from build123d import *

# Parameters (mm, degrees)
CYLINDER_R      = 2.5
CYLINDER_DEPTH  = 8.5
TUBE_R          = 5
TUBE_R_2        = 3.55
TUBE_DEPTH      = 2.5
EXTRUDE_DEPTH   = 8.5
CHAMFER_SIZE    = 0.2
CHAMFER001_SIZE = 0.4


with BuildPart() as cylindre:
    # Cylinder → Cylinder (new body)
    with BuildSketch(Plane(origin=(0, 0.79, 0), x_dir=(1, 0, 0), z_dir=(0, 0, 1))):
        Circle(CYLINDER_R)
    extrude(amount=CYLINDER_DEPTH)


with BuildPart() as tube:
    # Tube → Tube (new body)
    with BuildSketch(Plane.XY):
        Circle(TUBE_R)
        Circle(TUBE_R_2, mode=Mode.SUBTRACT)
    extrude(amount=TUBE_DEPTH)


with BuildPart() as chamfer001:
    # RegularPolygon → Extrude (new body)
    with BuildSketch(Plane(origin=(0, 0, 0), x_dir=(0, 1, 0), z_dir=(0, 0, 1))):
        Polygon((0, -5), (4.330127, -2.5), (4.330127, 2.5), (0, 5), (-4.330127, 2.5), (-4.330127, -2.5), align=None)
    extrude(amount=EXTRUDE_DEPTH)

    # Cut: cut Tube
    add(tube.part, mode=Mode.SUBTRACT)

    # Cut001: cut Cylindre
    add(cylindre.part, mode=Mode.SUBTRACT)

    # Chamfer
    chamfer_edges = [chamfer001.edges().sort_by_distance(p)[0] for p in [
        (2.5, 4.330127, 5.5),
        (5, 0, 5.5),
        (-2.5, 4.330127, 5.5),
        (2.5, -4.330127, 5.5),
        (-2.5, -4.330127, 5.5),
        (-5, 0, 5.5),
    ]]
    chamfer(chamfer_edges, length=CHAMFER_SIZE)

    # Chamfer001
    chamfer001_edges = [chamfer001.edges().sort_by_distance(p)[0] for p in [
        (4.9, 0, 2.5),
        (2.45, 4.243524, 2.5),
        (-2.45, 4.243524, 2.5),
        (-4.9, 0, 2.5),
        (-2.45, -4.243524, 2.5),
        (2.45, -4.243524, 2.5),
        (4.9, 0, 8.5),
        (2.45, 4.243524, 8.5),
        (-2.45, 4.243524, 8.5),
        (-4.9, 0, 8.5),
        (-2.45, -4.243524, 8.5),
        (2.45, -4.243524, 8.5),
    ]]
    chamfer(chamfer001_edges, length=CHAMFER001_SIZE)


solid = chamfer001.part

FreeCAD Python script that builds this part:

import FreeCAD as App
import Part
import Sketcher
Q = App.Units.Quantity


def edges_at(feature, points):
    """Names of the edges that pass closest to the given points."""
    edges = feature.Shape.Edges
    near = lambda p: min(range(len(edges)), key=lambda i: edges[i].distToShape(Part.Vertex(*p))[0])
    return sorted({f"Edge{near(p) + 1}" for p in points})

doc = App.newDocument("Part")
body = doc.addObject("PartDesign::Body", "Body")

# Sketch on XY plane
sketch1 = body.newObject("Sketcher::SketchObject", "Sketch")
sketch1.AttachmentSupport = (doc.getObject("XY_Plane"), [""])
sketch1.MapMode = "FlatFace"
sketch1.addGeometry(Part.Circle(App.Vector(0, 0.79, 0), App.Vector(0, 0, 1), 2.5), False)
sketch1.addConstraint(Sketcher.Constraint("PointOnObject", 0, 3, -2))
sketch1.addConstraint(Sketcher.Constraint("Diameter", 0, 5.0))
sketch1.addConstraint(Sketcher.Constraint("DistanceY", -1, 1, 0, 3, 0.79))
pad1 = body.newObject("PartDesign::Pad", "Pad")
pad1.Profile = sketch1
pad1.Length = 8.5
body2 = doc.addObject("PartDesign::Body", "Body001")

# Sketch on XY plane
sketch2 = body2.newObject("Sketcher::SketchObject", "Sketch001")
sketch2.AttachmentSupport = (doc.getObject("XY_Plane001"), [""])
sketch2.MapMode = "FlatFace"
sketch2.addGeometry(Part.Circle(App.Vector(0, 0, 0), App.Vector(0, 0, 1), 5), False)
sketch2.addGeometry(Part.Circle(App.Vector(0, 0, 0), App.Vector(0, 0, 1), 3.55), False)
sketch2.addConstraint(Sketcher.Constraint("Coincident", 0, 3, -1, 1))
sketch2.addConstraint(Sketcher.Constraint("Coincident", 1, 3, -1, 1))
sketch2.addConstraint(Sketcher.Constraint("Diameter", 0, 10.0))
sketch2.addConstraint(Sketcher.Constraint("Diameter", 1, 7.1))
pad2 = body2.newObject("PartDesign::Pad", "Pad001")
pad2.Profile = sketch2
pad2.Length = 2.5
body3 = doc.addObject("PartDesign::Body", "Body002")

# Sketch on XY plane
sketch3 = body3.newObject("Sketcher::SketchObject", "Sketch002")
sketch3.AttachmentSupport = (doc.getObject("XY_Plane002"), [""])
sketch3.MapMode = "FlatFace"
sketch3.addGeometry(Part.LineSegment(App.Vector(5, 0, 0), App.Vector(2.5, 4.330127, 0)), False)
sketch3.addGeometry(Part.LineSegment(App.Vector(2.5, 4.330127, 0), App.Vector(-2.5, 4.330127, 0)), False)
sketch3.addGeometry(Part.LineSegment(App.Vector(-2.5, 4.330127, 0), App.Vector(-5, 0, 0)), False)
sketch3.addGeometry(Part.LineSegment(App.Vector(-5, 0, 0), App.Vector(-2.5, -4.330127, 0)), False)
sketch3.addGeometry(Part.LineSegment(App.Vector(-2.5, -4.330127, 0), App.Vector(2.5, -4.330127, 0)), False)
sketch3.addGeometry(Part.LineSegment(App.Vector(2.5, -4.330127, 0), App.Vector(5, 0, 0)), False)
sketch3.addConstraint(Sketcher.Constraint("Coincident", 0, 2, 1, 1))
sketch3.addConstraint(Sketcher.Constraint("Coincident", 1, 2, 2, 1))
sketch3.addConstraint(Sketcher.Constraint("Coincident", 2, 2, 3, 1))
sketch3.addConstraint(Sketcher.Constraint("Coincident", 3, 2, 4, 1))
sketch3.addConstraint(Sketcher.Constraint("Coincident", 4, 2, 5, 1))
sketch3.addConstraint(Sketcher.Constraint("Coincident", 5, 2, 0, 1))
sketch3.addConstraint(Sketcher.Constraint("Horizontal", 1))
sketch3.addConstraint(Sketcher.Constraint("Horizontal", 4))
sketch3.addConstraint(Sketcher.Constraint("Symmetric", 0, 2, 3, 2, -1, 1))
sketch3.addConstraint(Sketcher.Constraint("Symmetric", 2, 2, 5, 2, -1, 1))
sketch3.addConstraint(Sketcher.Constraint("PointOnObject", 2, 2, -1))
sketch3.addConstraint(Sketcher.Constraint("Parallel", 2, 5))
sketch3.addConstraint(Sketcher.Constraint("Vertical", 1, 2, 3, 2))
sketch3.addConstraint(Sketcher.Constraint("DistanceX", 1, 2, 1, 1, 5.0))
sketch3.addConstraint(Sketcher.Constraint("Angle", 0, Q("120 deg")))
sketch3.addConstraint(Sketcher.Constraint("Distance", 0, 5.0))
pad3 = body3.newObject("PartDesign::Pad", "Pad002")
pad3.Profile = sketch3
pad3.Length = 8.5
doc.recompute()

boolean = body3.newObject("PartDesign::Boolean", "Boolean")
boolean.Type = "Cut"
boolean.addObjects([body2])
doc.recompute()

boolean2 = body3.newObject("PartDesign::Boolean", "Boolean001")
boolean2.Type = "Cut"
boolean2.addObjects([body])
doc.recompute()

chamfer = body3.newObject("PartDesign::Chamfer", "Chamfer")
chamfer.Base = (boolean2, edges_at(boolean2, [
    (2.5, 4.33, 5.5),
    (5, 0, 5.5),
    (-2.5, 4.33, 5.5),
    (2.5, -4.33, 5.5),
    (-2.5, -4.33, 5.5),
    (-5, 0, 5.5),
]))
chamfer.Size = 0.2
doc.recompute()

chamfer2 = body3.newObject("PartDesign::Chamfer", "Chamfer001")
chamfer2.Base = (chamfer, edges_at(chamfer, [
    (4.9, 0, 2.5),
    (2.45, 4.244, 2.5),
    (-2.45, 4.244, 2.5),
    (-4.9, 0, 2.5),
    (-2.45, -4.244, 2.5),
    (2.45, -4.244, 2.5),
    (4.9, 0, 8.5),
    (2.45, 4.244, 8.5),
    (-2.45, 4.244, 8.5),
    (-4.9, 0, 8.5),
    (-2.45, -4.244, 8.5),
    (2.45, -4.244, 8.5),
]))
chamfer2.Size = 0.4

doc.recompute()
